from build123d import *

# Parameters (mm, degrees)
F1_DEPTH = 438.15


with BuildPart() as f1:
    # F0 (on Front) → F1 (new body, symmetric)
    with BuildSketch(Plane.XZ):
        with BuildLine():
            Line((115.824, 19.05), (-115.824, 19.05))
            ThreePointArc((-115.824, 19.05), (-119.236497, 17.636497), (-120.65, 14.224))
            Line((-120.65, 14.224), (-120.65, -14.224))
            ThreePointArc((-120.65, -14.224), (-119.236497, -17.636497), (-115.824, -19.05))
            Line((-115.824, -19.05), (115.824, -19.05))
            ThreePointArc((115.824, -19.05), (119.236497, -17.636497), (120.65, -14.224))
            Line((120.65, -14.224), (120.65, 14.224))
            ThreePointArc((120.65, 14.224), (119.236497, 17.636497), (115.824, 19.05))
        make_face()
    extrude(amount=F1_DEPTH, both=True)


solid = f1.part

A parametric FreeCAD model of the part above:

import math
import FreeCAD as App
import Part
import Sketcher
from FreeCAD import Vector
Q = App.Units.Quantity

doc = App.newDocument("Part")
body = doc.addObject("PartDesign::Body", "Body")

sketch1 = doc.addObject("Sketcher::SketchObject", "Sketch")
body.addObject(sketch1)
sketch1.AttachmentSupport = (doc.XZ_Plane, [""])
sketch1.MapMode = "FlatFace"
sketch1.addGeometry([
    Part.LineSegment(Vector(115.824, 19.05, 0), Vector(-115.824, 19.05, 0)),
    Part.ArcOfCircle(Part.Circle(Vector(-115.823999, 14.223999, 0), Vector(0, 0, 1), 4.826001), math.radians(90.000013), math.radians(179.999987)),
    Part.LineSegment(Vector(-120.65, 14.224, 0), Vector(-120.65, -14.224, 0)),
    Part.ArcOfCircle(Part.Circle(Vector(-115.823999, -14.223999, 0), Vector(0, 0, 1), 4.826001), math.radians(-179.999987), math.radians(-90.000013)),
    Part.LineSegment(Vector(-115.824, -19.05, 0), Vector(115.824, -19.05, 0)),
    Part.ArcOfCircle(Part.Circle(Vector(115.823999, -14.223999, 0), Vector(0, 0, 1), 4.826001), math.radians(-89.999987), math.radians(-0.000013)),
    Part.LineSegment(Vector(120.65, -14.224, 0), Vector(120.65, 14.224, 0)),
    Part.ArcOfCircle(Part.Circle(Vector(115.823999, 14.223999, 0), Vector(0, 0, 1), 4.826001), math.radians(0.000013), math.radians(89.999987)),
], False)
sketch1.addConstraint([
    Sketcher.Constraint("Tangent", 0, 2, 1, 1),
    Sketcher.Constraint("Tangent", 1, 2, 2, 1),
    Sketcher.Constraint("Tangent", 2, 2, 3, 1),
    Sketcher.Constraint("Tangent", 3, 2, 4, 1),
    Sketcher.Constraint("Tangent", 4, 2, 5, 1),
    Sketcher.Constraint("Tangent", 5, 2, 6, 1),
    Sketcher.Constraint("Tangent", 6, 2, 7, 1),
    Sketcher.Constraint("Tangent", 7, 2, 0, 1),
    Sketcher.Constraint("Horizontal", 0),
    Sketcher.Constraint("Vertical", 2),
    Sketcher.Constraint("Horizontal", 4),
    Sketcher.Constraint("Vertical", 6),
    Sketcher.Constraint("Equal", 1, 3),
    Sketcher.Constraint("Equal", 3, 5),
    Sketcher.Constraint("Equal", 5, 7),
    Sketcher.Constraint("Symmetric", 1, 3, 5, 3, -1, 1),
    Sketcher.Constraint("Radius", 1, Q("0.19 in")),
    Sketcher.Constraint("DistanceX", 0, 2, 0, 1, Q("9.12 in")),
    Sketcher.Constraint("DistanceY", 2, 2, 2, 1, Q("1.12 in")),
])
pad1 = doc.addObject("PartDesign::Pad", "Pad")
body.addObject(pad1)
pad1.Profile = sketch1
pad1.Length = Q("34.5 in")
pad1.Midplane = True

doc.recompute()
